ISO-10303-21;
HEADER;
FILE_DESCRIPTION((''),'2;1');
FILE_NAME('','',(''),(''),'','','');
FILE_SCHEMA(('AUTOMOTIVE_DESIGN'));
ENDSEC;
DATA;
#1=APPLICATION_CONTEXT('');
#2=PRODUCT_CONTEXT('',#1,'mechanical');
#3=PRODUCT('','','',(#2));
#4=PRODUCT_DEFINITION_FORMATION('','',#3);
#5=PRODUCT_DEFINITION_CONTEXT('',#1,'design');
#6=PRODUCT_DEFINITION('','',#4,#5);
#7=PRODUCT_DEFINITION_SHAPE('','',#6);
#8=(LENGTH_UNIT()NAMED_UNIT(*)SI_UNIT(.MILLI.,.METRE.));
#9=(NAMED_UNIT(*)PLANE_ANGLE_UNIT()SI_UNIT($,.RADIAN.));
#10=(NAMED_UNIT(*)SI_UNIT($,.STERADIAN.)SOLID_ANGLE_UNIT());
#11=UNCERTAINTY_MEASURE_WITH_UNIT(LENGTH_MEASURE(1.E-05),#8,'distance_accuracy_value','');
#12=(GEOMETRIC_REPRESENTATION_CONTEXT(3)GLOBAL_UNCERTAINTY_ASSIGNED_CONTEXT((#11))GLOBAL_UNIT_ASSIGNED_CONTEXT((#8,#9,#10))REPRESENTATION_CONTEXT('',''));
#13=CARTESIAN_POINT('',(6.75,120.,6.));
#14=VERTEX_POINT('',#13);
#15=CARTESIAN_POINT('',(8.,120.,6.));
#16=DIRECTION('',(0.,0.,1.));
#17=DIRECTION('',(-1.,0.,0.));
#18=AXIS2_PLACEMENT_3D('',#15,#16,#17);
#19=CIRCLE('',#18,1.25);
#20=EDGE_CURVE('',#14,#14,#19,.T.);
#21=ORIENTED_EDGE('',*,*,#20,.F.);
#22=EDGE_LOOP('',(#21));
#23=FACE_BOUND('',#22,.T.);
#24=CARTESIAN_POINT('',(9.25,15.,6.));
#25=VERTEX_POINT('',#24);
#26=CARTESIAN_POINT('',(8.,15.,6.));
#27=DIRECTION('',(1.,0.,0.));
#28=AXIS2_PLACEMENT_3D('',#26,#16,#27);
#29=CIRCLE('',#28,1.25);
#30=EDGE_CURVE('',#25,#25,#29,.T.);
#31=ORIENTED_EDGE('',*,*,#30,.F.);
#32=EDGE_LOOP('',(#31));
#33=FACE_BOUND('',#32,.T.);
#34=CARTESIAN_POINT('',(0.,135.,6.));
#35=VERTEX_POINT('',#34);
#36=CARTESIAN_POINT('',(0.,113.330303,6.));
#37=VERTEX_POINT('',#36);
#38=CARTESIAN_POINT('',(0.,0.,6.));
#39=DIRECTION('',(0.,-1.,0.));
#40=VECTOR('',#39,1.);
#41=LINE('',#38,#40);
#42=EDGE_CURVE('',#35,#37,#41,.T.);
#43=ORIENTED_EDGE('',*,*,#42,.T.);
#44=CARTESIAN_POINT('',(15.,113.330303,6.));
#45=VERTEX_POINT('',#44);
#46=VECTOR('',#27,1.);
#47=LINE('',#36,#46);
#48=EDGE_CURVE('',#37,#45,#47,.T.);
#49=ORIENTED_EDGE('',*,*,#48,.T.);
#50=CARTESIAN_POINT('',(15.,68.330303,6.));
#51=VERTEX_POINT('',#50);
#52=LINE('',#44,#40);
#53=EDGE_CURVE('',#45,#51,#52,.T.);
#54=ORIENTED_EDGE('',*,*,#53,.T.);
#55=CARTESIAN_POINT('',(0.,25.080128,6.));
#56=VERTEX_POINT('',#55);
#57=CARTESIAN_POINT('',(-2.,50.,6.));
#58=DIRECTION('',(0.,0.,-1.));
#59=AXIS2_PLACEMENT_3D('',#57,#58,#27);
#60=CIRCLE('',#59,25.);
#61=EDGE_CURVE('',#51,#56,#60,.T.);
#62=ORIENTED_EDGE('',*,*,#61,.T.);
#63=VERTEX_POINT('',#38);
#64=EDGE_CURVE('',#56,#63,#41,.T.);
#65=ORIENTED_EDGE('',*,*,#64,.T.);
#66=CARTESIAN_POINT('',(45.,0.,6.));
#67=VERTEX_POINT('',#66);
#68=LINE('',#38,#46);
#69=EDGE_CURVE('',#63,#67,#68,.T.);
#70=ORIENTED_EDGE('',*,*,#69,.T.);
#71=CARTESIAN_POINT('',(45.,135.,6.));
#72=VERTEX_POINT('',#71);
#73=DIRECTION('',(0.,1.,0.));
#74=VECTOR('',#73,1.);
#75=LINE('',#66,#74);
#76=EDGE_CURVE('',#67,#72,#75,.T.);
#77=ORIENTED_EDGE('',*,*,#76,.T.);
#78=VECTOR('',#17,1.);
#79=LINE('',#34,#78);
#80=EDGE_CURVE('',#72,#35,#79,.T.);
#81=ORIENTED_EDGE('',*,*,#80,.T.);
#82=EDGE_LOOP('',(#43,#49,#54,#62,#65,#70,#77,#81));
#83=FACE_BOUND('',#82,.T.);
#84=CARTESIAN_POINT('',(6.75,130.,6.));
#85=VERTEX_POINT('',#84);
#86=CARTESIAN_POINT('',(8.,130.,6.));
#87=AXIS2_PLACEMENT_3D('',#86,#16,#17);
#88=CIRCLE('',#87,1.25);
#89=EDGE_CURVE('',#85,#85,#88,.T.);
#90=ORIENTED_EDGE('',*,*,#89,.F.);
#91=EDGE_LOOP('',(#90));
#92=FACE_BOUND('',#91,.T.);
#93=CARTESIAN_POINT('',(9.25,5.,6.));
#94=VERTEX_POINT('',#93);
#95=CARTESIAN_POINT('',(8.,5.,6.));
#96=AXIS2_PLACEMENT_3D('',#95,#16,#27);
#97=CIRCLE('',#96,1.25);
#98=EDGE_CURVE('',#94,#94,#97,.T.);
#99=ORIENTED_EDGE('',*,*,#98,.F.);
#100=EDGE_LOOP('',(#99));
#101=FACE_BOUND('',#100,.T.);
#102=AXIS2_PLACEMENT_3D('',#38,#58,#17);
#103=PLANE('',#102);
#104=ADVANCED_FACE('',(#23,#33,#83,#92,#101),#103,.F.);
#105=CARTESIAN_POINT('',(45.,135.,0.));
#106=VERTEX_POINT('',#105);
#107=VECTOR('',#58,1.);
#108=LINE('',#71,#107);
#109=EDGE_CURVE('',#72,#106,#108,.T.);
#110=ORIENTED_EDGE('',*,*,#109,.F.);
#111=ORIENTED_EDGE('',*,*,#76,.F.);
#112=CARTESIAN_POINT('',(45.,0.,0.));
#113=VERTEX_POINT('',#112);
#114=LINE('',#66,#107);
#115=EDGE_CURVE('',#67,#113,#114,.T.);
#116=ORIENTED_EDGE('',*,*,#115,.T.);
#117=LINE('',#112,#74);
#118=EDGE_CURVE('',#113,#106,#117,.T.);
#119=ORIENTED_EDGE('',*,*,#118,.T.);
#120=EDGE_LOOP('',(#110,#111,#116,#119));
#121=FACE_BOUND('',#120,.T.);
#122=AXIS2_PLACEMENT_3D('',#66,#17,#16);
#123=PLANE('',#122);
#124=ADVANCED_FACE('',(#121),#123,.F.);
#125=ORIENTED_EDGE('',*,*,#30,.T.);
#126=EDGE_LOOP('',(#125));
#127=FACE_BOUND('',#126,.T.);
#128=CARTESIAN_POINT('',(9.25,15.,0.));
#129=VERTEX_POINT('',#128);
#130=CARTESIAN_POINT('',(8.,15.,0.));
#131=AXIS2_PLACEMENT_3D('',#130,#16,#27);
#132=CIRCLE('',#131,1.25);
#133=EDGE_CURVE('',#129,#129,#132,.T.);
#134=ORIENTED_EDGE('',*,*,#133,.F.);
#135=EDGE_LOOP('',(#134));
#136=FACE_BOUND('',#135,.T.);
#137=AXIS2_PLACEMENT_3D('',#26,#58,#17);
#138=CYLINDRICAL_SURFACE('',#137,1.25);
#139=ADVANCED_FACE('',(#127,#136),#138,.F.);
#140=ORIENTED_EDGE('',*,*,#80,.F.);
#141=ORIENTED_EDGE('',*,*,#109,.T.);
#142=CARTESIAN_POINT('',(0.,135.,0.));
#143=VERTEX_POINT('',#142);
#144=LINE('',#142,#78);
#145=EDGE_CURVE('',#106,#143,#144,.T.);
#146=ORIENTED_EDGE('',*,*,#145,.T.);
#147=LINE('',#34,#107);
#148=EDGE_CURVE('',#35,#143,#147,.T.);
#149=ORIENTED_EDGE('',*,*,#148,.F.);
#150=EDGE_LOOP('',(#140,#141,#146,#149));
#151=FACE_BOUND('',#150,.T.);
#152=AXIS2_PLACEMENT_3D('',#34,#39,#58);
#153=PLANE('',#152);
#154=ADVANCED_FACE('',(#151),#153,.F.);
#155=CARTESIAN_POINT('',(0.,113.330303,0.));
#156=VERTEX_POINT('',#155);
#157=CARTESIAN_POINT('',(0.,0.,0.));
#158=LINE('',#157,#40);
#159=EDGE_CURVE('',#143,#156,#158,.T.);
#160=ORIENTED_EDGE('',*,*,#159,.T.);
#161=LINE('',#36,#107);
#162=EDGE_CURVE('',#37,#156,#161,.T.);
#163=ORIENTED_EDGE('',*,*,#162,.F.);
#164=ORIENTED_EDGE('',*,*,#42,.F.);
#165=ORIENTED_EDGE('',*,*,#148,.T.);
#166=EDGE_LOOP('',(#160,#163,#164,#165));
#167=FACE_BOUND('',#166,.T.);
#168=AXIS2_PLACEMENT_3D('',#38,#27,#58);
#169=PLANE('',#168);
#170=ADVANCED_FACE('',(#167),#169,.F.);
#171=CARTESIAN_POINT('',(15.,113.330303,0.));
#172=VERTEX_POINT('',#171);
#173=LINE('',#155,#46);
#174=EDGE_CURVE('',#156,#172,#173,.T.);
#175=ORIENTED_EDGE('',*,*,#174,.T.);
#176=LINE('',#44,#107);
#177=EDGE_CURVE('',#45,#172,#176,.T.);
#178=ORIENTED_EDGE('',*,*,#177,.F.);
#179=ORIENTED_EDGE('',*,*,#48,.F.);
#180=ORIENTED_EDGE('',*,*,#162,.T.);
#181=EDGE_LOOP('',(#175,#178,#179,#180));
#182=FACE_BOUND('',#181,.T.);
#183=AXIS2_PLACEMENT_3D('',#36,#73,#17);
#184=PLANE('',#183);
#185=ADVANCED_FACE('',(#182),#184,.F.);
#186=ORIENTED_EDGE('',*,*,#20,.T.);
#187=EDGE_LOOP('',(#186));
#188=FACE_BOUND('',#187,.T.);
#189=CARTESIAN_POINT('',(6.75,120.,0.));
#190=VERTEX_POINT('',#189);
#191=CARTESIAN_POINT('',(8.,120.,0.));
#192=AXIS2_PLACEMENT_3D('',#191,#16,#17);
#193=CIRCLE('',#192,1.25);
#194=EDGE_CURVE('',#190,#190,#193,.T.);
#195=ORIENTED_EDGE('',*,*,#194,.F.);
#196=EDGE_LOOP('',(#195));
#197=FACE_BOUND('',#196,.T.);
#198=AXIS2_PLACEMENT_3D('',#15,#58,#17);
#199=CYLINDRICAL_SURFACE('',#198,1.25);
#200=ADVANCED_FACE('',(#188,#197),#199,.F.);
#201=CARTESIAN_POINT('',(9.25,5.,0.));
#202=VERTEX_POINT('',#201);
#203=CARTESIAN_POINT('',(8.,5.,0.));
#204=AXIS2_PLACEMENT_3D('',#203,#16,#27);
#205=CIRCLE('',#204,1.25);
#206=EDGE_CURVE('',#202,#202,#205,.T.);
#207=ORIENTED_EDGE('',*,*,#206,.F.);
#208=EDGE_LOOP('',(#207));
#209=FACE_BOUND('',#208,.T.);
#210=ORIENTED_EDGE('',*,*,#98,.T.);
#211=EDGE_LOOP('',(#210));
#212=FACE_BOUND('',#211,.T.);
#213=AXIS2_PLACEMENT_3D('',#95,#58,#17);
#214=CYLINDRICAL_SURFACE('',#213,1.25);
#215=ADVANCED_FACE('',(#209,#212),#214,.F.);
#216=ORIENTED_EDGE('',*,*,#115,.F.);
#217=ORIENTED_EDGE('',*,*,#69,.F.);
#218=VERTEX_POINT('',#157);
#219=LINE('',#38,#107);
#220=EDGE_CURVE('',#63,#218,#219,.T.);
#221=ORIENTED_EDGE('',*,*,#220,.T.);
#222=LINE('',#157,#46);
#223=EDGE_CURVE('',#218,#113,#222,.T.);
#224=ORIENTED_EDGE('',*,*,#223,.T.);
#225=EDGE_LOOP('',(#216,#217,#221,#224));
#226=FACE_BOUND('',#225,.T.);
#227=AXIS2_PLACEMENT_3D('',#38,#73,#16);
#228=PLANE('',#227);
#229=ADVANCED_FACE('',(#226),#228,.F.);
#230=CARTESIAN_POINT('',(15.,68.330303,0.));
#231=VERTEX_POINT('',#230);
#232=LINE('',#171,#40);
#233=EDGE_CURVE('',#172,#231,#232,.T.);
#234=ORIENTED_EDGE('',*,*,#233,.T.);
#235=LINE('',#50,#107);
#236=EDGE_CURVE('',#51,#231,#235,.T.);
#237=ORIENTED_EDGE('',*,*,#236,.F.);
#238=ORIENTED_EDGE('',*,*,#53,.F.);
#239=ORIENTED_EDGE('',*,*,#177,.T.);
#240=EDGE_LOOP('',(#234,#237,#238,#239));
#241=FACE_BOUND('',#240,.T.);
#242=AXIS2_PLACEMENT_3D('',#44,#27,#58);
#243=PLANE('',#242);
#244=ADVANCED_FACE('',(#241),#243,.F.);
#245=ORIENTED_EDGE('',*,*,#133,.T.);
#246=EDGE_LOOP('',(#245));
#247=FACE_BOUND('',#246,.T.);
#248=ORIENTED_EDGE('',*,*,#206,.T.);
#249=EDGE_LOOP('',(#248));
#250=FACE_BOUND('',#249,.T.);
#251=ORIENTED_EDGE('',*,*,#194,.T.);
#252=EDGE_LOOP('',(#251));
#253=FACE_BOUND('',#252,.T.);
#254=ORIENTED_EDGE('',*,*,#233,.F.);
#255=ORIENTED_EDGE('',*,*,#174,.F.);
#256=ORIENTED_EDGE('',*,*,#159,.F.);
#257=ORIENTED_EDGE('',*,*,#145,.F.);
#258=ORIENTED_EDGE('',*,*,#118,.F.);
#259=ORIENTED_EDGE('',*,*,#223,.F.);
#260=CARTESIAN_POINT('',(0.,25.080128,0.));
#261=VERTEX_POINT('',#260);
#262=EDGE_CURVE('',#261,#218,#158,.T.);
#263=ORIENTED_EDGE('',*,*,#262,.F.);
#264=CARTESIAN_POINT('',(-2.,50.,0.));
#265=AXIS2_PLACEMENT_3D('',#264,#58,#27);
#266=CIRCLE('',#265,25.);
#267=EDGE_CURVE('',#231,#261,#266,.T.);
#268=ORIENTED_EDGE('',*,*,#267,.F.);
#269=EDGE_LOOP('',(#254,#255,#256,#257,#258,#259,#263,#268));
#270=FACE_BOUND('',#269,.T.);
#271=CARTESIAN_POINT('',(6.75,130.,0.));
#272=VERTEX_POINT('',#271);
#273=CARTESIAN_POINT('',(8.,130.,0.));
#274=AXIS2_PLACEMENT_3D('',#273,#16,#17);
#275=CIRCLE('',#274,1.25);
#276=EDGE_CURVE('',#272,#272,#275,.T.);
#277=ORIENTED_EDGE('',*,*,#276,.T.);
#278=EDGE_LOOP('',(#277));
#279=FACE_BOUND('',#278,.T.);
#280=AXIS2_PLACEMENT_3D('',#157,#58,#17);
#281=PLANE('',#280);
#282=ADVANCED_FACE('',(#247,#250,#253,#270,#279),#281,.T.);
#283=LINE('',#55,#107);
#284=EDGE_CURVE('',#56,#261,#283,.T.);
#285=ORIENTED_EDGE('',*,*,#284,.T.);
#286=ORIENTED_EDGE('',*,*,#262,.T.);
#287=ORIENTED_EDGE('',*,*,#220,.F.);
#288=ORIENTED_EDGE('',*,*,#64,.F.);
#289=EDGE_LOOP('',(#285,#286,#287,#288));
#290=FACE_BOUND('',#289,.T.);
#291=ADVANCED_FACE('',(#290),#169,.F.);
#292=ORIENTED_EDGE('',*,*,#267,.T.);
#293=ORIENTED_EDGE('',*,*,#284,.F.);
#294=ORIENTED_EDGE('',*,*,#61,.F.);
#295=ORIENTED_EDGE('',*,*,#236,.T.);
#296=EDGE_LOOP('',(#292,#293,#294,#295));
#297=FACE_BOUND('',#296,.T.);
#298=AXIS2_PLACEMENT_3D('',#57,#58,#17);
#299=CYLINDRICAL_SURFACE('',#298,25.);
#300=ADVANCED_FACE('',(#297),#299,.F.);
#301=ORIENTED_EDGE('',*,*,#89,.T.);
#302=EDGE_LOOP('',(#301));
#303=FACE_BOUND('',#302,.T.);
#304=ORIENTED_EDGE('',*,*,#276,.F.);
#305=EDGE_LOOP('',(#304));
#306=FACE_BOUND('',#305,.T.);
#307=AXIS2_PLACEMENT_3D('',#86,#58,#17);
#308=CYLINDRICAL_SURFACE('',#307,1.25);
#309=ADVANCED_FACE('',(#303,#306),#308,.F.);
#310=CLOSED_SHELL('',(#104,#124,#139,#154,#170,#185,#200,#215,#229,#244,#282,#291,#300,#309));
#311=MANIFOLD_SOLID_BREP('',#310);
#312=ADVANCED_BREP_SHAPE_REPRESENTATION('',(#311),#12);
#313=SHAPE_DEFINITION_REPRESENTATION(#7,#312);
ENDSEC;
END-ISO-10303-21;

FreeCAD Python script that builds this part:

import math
import FreeCAD as App
import Part
import Sketcher

V = App.Vector


def add_polygon(sketch, points):
    """Adds a closed chain of lines whose ends are joined by coincident constraints."""
    first, n = sketch.GeometryCount, len(points)
    for a, b in zip(points, points[1:] + points[:1]):
        sketch.addGeometry(Part.LineSegment(App.Vector(*a, 0), App.Vector(*b, 0)), False)
    for i in range(n):
        sketch.addConstraint(Sketcher.Constraint("Coincident", first + i, 2, first + (i + 1) % n, 1))

doc = App.newDocument("Part")
body = doc.addObject("PartDesign::Body", "Body")

# Sketch on XY plane
sketch1 = body.newObject("Sketcher::SketchObject", "Sketch")
sketch1.AttachmentSupport = (doc.getObject("XY_Plane"), [""])
sketch1.MapMode = "FlatFace"
add_polygon(sketch1, [(0, 135), (0, 0), (45, 0), (45, 135)])  # lines 0-3
sketch1.addGeometry(Part.Circle(V(8, 5, 0), V(0, 0, 1), 1.2), False)  # 4
sketch1.addGeometry(Part.Circle(V(8, 15, 0), V(0, 0, 1), 1.2), False)  # 5
sketch1.addGeometry(Part.Circle(V(8, 120, 0), V(0, 0, 1), 1.2), False)  # 6
sketch1.addGeometry(Part.Circle(V(8, 130, 0), V(0, 0, 1), 1.2), False)  # 7
sketch1.addConstraint([
    Sketcher.Constraint("Vertical", 0),
    Sketcher.Constraint("Horizontal", 1),
    Sketcher.Constraint("Vertical", 2),
    Sketcher.Constraint("Horizontal", 3),
    Sketcher.Constraint("Coincident", 0, 2, -1, 1),
    Sketcher.Constraint("Equal", 4, 5),
    Sketcher.Constraint("Equal", 5, 6),
    Sketcher.Constraint("Equal", 6, 7),
    Sketcher.Constraint("Vertical", 4, 3, 5, 3),
    Sketcher.Constraint("Vertical", 5, 3, 6, 3),
    Sketcher.Constraint("Vertical", 6, 3, 7, 3),
    Sketcher.Constraint("Diameter", 4, 2.5),
    Sketcher.Constraint("DistanceX", 1, 1, 1, 2, 45.0),
    Sketcher.Constraint("DistanceY", 0, 2, 0, 1, 135.0),
    Sketcher.Constraint("DistanceX", -1, 1, 4, 3, 8.0),
    Sketcher.Constraint("DistanceY", -1, 1, 4, 3, 5.0),
    Sketcher.Constraint("DistanceY", -1, 1, 5, 3, 15.0),
    Sketcher.Constraint("DistanceY", -1, 1, 6, 3, 120.0),
    Sketcher.Constraint("DistanceY", -1, 1, 7, 3, 130.0),
])
pad1 = body.newObject("PartDesign::Pad", "Pad")
pad1.Profile = sketch1
pad1.Length = 6

# Sketch on XY plane
sketch2 = body.newObject("Sketcher::SketchObject", "Sketch001")
sketch2.AttachmentSupport = (doc.getObject("XY_Plane"), [""])
sketch2.MapMode = "FlatFace"
sketch2.addGeometry([
    Part.LineSegment(V(0, 25, 0), V(0, 113, 0)),
    Part.LineSegment(V(0, 113, 0), V(15, 113, 0)),
    Part.LineSegment(V(15, 113, 0), V(15, 68, 0)),
    Part.ArcOfCircle(Part.Circle(V(-2, 50, 0), V(0, 0, 1), 25), math.radians(-85), math.radians(47)),
], False)
sketch2.addConstraint([
    Sketcher.Constraint("Coincident", 0, 2, 1, 1),
    Sketcher.Constraint("Coincident", 1, 2, 2, 1),
    Sketcher.Constraint("Coincident", 2, 2, 3, 2),
    Sketcher.Constraint("Coincident", 3, 1, 0, 1),
    Sketcher.Constraint("Vertical", 0),
    Sketcher.Constraint("Horizontal", 1),
    Sketcher.Constraint("Vertical", 2),
    Sketcher.Constraint("PointOnObject", 0, 2, -2),
    Sketcher.Constraint("Radius", 3, 25.0),
    Sketcher.Constraint("DistanceX", 1, 1, 1, 2, 15.0),
    Sketcher.Constraint("DistanceY", 2, 2, 2, 1, 45.0),
    Sketcher.Constraint("DistanceX", 3, 3, -1, 1, 2.0),
    Sketcher.Constraint("DistanceY", -1, 1, 3, 3, 50.0),
])
pocket1 = body.newObject("PartDesign::Pocket", "Pocket")
pocket1.Profile = sketch2
pocket1.Type = "ThroughAll"
pocket1.Reversed = True

doc.recompute()
